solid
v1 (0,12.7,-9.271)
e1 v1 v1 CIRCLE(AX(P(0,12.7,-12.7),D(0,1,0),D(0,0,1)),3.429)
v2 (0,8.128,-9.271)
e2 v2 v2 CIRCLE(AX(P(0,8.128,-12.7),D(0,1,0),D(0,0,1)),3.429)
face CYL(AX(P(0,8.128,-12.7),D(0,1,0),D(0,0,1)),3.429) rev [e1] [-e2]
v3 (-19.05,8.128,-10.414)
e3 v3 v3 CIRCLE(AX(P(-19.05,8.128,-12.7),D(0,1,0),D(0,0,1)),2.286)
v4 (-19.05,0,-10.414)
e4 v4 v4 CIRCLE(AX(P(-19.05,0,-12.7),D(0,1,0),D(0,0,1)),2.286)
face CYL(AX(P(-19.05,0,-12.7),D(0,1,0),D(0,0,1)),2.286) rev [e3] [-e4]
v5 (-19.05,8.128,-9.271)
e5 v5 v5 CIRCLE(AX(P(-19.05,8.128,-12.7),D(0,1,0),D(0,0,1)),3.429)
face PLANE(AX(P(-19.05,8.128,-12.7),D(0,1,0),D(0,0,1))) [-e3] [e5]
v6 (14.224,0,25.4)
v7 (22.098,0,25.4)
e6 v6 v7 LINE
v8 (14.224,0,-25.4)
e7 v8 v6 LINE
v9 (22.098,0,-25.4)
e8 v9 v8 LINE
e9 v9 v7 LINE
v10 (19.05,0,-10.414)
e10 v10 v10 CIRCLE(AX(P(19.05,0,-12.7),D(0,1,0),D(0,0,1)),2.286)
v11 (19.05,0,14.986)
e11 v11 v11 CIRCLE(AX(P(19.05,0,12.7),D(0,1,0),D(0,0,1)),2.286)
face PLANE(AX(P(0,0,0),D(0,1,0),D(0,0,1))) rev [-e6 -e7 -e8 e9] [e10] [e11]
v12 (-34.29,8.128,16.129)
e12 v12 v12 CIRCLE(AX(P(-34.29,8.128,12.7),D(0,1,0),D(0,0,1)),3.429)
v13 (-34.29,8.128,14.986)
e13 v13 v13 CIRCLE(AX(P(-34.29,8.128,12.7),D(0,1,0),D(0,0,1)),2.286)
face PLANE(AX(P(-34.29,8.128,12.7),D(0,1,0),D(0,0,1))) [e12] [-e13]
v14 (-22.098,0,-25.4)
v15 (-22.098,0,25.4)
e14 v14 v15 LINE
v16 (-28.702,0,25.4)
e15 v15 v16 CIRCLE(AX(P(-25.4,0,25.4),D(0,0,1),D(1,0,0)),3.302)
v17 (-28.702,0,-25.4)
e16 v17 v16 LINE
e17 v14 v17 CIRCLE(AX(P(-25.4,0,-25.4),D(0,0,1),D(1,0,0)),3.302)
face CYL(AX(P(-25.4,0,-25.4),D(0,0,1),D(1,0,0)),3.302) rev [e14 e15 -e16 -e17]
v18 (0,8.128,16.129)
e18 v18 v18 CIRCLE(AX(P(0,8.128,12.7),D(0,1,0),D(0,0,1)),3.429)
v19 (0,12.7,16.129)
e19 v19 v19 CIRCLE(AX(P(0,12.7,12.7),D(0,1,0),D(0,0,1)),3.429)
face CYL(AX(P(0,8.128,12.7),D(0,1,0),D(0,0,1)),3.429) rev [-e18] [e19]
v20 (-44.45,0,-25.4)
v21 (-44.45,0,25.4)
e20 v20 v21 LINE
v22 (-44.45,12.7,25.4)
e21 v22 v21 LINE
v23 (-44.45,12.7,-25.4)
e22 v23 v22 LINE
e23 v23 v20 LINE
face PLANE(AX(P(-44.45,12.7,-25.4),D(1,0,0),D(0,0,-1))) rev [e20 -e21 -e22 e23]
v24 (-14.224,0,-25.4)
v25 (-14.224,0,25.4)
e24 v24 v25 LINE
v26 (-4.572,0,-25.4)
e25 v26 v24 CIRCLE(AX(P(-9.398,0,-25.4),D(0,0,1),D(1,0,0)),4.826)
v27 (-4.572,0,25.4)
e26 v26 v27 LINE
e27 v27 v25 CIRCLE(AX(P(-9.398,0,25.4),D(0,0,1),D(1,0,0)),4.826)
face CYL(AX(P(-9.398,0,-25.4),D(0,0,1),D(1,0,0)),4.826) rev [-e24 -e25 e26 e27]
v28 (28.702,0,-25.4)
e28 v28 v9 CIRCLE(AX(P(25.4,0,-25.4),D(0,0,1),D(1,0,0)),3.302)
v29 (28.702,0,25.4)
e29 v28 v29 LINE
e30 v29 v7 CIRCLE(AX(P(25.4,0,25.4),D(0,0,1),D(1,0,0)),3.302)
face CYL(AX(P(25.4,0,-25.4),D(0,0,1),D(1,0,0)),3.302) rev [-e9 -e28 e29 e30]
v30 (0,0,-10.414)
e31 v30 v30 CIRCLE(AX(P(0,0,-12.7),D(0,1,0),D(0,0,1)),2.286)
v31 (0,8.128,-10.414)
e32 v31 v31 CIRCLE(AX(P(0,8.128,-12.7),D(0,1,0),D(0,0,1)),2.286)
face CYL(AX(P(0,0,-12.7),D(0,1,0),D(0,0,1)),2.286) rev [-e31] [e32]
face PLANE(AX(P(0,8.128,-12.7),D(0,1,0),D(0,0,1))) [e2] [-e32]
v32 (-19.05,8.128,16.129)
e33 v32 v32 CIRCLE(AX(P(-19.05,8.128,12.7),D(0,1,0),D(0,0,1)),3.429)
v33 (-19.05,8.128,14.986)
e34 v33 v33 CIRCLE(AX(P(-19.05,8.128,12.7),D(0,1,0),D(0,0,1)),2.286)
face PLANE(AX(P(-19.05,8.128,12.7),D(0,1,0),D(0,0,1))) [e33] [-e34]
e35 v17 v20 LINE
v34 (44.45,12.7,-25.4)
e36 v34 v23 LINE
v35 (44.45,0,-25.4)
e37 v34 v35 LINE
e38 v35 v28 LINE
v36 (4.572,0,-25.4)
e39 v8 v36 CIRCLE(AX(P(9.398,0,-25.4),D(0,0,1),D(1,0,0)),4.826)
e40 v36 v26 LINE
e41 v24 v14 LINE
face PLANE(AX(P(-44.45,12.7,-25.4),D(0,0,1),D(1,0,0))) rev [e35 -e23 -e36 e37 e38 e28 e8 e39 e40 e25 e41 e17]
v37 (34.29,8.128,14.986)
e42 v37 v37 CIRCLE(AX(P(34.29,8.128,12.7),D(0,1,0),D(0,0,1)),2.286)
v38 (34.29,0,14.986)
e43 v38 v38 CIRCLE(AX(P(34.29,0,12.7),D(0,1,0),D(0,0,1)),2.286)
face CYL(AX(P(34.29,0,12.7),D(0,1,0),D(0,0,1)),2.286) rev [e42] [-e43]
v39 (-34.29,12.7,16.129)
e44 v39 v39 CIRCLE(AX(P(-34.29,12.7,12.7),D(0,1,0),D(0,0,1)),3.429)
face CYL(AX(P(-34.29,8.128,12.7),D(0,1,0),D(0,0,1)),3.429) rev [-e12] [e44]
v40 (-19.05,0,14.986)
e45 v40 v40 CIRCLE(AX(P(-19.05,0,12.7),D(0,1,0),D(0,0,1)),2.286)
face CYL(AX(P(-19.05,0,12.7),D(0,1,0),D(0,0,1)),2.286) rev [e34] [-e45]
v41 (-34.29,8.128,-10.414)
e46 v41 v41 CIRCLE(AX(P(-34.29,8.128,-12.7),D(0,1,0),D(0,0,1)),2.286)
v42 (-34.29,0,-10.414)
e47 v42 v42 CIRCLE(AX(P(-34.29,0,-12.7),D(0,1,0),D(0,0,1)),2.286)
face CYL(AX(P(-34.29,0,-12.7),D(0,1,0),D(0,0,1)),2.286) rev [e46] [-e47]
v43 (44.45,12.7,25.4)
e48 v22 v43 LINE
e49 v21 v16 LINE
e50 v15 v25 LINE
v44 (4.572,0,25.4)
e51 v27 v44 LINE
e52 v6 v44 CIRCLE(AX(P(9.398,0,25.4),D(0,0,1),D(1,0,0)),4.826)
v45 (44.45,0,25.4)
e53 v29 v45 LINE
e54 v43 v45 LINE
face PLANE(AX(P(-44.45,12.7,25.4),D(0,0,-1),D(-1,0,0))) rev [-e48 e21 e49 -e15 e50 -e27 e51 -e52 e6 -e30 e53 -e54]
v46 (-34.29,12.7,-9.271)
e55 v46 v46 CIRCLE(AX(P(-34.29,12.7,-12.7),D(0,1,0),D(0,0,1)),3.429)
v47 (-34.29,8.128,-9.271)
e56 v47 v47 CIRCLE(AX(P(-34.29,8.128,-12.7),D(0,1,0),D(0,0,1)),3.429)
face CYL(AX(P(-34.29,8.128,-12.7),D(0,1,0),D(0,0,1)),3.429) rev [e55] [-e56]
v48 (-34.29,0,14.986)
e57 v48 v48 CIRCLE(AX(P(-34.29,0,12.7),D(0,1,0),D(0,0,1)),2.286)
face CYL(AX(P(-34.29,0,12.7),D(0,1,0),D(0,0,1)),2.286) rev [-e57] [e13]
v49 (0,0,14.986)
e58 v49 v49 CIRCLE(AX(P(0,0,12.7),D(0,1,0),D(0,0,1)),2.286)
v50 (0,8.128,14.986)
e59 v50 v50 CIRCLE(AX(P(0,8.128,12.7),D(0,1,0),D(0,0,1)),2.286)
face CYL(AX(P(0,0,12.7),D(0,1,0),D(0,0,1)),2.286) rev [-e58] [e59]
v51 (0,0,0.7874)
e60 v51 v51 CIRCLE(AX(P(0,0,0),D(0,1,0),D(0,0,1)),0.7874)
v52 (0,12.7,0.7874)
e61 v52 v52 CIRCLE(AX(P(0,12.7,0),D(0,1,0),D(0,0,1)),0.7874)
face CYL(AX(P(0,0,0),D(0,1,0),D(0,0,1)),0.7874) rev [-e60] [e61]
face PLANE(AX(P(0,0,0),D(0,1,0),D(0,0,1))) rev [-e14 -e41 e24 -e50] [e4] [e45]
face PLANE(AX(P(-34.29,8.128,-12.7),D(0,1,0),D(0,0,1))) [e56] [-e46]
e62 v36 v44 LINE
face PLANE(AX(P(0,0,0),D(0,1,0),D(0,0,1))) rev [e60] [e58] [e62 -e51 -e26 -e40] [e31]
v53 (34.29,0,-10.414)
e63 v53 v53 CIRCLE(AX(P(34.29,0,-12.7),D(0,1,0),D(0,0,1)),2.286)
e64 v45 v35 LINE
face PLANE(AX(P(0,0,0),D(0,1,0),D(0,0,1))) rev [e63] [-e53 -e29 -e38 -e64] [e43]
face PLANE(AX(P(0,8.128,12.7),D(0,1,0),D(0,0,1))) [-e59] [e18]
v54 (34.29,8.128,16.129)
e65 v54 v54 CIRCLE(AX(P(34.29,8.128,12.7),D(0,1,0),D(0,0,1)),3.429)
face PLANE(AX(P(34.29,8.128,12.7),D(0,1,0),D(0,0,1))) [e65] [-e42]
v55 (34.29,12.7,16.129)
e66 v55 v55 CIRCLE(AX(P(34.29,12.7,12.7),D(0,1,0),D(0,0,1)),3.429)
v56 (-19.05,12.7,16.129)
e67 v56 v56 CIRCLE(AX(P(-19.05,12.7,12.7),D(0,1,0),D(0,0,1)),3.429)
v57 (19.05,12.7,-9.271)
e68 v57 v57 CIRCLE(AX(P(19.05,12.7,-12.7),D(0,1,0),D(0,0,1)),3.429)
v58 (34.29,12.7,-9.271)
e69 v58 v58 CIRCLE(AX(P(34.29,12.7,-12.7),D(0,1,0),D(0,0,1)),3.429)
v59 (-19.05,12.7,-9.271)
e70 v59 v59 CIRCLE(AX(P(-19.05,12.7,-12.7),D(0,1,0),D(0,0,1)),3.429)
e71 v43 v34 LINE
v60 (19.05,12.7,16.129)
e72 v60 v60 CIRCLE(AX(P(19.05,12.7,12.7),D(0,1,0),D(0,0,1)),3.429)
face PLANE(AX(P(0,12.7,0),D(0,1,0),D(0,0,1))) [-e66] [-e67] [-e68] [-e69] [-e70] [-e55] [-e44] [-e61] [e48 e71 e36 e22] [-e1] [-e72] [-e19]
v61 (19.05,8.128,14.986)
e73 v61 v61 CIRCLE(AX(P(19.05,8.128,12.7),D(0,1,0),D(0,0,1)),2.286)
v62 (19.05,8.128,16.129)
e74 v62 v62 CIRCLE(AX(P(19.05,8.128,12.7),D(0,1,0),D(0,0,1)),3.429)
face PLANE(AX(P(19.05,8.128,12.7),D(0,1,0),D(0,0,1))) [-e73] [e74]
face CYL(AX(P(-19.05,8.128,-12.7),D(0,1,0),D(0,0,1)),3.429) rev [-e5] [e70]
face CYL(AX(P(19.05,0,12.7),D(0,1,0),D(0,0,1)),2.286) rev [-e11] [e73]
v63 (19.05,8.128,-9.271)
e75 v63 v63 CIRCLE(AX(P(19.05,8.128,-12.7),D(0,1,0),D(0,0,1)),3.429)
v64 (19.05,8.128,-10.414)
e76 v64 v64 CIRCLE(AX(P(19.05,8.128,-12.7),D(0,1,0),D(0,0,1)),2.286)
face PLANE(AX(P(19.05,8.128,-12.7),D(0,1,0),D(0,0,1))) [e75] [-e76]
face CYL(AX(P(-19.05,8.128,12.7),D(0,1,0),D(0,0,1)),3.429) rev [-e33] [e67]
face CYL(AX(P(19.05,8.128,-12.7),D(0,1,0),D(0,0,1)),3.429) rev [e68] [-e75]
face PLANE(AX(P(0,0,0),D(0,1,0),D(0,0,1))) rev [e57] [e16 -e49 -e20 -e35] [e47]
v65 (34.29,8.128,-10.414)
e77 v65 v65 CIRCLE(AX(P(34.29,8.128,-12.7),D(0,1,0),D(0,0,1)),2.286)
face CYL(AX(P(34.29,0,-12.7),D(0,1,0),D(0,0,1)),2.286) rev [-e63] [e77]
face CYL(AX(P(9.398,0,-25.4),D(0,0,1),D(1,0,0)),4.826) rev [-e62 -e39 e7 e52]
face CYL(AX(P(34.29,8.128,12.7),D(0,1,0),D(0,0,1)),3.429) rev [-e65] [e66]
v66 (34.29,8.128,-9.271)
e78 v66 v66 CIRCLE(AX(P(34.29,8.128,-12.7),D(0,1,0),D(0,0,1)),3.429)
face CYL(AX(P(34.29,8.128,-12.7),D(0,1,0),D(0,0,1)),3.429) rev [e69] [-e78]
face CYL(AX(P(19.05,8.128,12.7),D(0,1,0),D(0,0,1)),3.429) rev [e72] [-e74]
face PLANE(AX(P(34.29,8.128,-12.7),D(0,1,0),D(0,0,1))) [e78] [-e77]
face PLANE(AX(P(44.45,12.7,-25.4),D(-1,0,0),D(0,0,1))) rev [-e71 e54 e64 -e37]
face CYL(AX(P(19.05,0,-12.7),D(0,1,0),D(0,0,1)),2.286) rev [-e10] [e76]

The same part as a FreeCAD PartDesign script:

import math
import FreeCAD as App
import Part
import Sketcher
Q = App.Units.Quantity


def add_polygon(sketch, points):
    """Adds a closed chain of lines whose ends are joined by coincident constraints."""
    first, n = sketch.GeometryCount, len(points)
    for a, b in zip(points, points[1:] + points[:1]):
        sketch.addGeometry(Part.LineSegment(App.Vector(*a, 0), App.Vector(*b, 0)), False)
    for i in range(n):
        sketch.addConstraint(Sketcher.Constraint("Coincident", first + i, 2, first + (i + 1) % n, 1))

doc = App.newDocument("Part")
params = doc.addObject("Spreadsheet::Sheet", "Params")
for row, (alias, value) in enumerate([
    ("sketch1_height", "2 in"),
    ("sketch1_width", "3.5 in"),
    ("pad1_length", "0.5 in"),
    ("sketch2_diameter", "0.27 in"),
    ("sketch2_diameter2", "0.18 in"),
    ("pocket1_length", "0.18 in"),
    ("sketch3_diameter", "0.18 in"),
    ("linearpattern_pitch", "1 in"),
    ("sketch4_radius", "0.13 in"),
    ("sketch4_radius2", "0.19 in"),
    ("sketch5_diameter", "0.062 in"),
    ("sketch6_diameter", "0.18 in"),
], start=1):
    params.set(f"A{row}", alias)
    params.set(f"B{row}", "=" + value)
    params.setAlias(f"B{row}", alias)

body = doc.addObject("PartDesign::Body", "Body")

# Sketch on XZ plane
sketch1 = doc.addObject("Sketcher::SketchObject", "Sketch")
body.addObject(sketch1)
sketch1.AttachmentSupport = (doc.XZ_Plane, [""])
sketch1.MapMode = "FlatFace"
add_polygon(sketch1, [(-44.45, -25.4), (-44.45, 25.4), (44.45, 25.4), (44.45, -25.4)])  # lines 0-3
sketch1.addConstraint([
    Sketcher.Constraint("Vertical", 0),
    Sketcher.Constraint("Horizontal", 1),
    Sketcher.Constraint("Vertical", 2),
    Sketcher.Constraint("Horizontal", 3),
    Sketcher.Constraint("Symmetric", 0, 2, 2, 2, -1, 1),
    Sketcher.Constraint("DistanceY", 0, 1, 0, 2, Q("2 in")),
    Sketcher.Constraint("DistanceX", 1, 1, 1, 2, Q("3.5 in")),
])
sketch1.setExpression("Constraints[9]", "Params.sketch1_height")
sketch1.setExpression("Constraints[10]", "Params.sketch1_width")
pad1 = doc.addObject("PartDesign::Pad", "Pad")
body.addObject(pad1)
pad1.Profile = sketch1
pad1.setExpression("Length", "Params.pad1_length")
pad1.Reversed = True

# Sketch on XZ plane
sketch2 = doc.addObject("Sketcher::SketchObject", "Sketch001")
body.addObject(sketch2)
sketch2.AttachmentSupport = (doc.XZ_Plane, [""])
sketch2.MapMode = "FlatFace"
sketch2.AttachmentOffset = App.Placement(App.Vector(0, 0, -0.5 * 25.4), App.Rotation())
sketch2.addGeometry([
    Part.Circle(App.Vector(-34.29, -12.7, 0), App.Vector(0, 0, 1), 3.429),  # 0
    Part.Circle(App.Vector(-34.29, -12.7, 0), App.Vector(0, 0, 1), 2.286),  # 1
    Part.Circle(App.Vector(-19.05, -12.7, 0), App.Vector(0, 0, 1), 3.429),  # 2
    Part.Circle(App.Vector(-19.05, -12.7, 0), App.Vector(0, 0, 1), 2.286),  # 3
    Part.Circle(App.Vector(0, -12.7, 0), App.Vector(0, 0, 1), 3.429),  # 4
    Part.Circle(App.Vector(0, -12.7, 0), App.Vector(0, 0, 1), 2.286),  # 5
    Part.Circle(App.Vector(19.05, -12.7, 0), App.Vector(0, 0, 1), 3.429),  # 6
    Part.Circle(App.Vector(19.05, -12.7, 0), App.Vector(0, 0, 1), 2.286),  # 7
    Part.Circle(App.Vector(34.29, -12.7, 0), App.Vector(0, 0, 1), 3.429),  # 8
    Part.Circle(App.Vector(34.29, -12.7, 0), App.Vector(0, 0, 1), 2.286),  # 9
], False)
sketch2.addConstraint([
    Sketcher.Constraint("Coincident", 1, 3, 0, 3),
    Sketcher.Constraint("Coincident", 3, 3, 2, 3),
    Sketcher.Constraint("Coincident", 5, 3, 4, 3),
    Sketcher.Constraint("Coincident", 7, 3, 6, 3),
    Sketcher.Constraint("Coincident", 9, 3, 8, 3),
    Sketcher.Constraint("Equal", 0, 2),
    Sketcher.Constraint("Equal", 1, 3),
    Sketcher.Constraint("Equal", 2, 4),
    Sketcher.Constraint("Equal", 3, 5),
    Sketcher.Constraint("Equal", 4, 6),
    Sketcher.Constraint("Equal", 5, 7),
    Sketcher.Constraint("Equal", 6, 8),
    Sketcher.Constraint("Equal", 7, 9),
    Sketcher.Constraint("Symmetric", 2, 3, 6, 3, -2),
    Sketcher.Constraint("Symmetric", 0, 3, 8, 3, -2),
    Sketcher.Constraint("PointOnObject", 4, 3, -2),
    Sketcher.Constraint("Horizontal", 1, 3, 2, 3),
    Sketcher.Constraint("Horizontal", 3, 3, 4, 3),
    Sketcher.Constraint("Diameter", 0, Q("0.27 in")),
    Sketcher.Constraint("Diameter", 1, Q("0.18 in")),
    Sketcher.Constraint("DistanceY", 0, 3, -1, 1, Q("0.5 in")),
    Sketcher.Constraint("DistanceX", 0, 3, 2, 3, Q("0.6 in")),
    Sketcher.Constraint("DistanceX", 2, 3, 6, 3, Q("1.5 in")),
])
sketch2.setExpression("Constraints[18]", "Params.sketch2_diameter")
sketch2.setExpression("Constraints[19]", "Params.sketch2_diameter2")
pocket1 = doc.addObject("PartDesign::Pocket", "Pocket")
body.addObject(pocket1)
pocket1.Profile = sketch2
pocket1.setExpression("Length", "Params.pocket1_length")
pocket1.Reversed = True

# Sketch on XZ plane
sketch3 = doc.addObject("Sketcher::SketchObject", "Sketch002")
body.addObject(sketch3)
sketch3.AttachmentSupport = (doc.XZ_Plane, [""])
sketch3.MapMode = "FlatFace"
sketch3.AttachmentOffset = App.Placement(App.Vector(0, 0, -0.5 * 25.4), App.Rotation())
sketch3.addGeometry([
    Part.Circle(App.Vector(-34.29, -12.7, 0), App.Vector(0, 0, 1), 2.286),  # 0
    Part.Circle(App.Vector(-19.05, -12.7, 0), App.Vector(0, 0, 1), 2.286),  # 1
    Part.Circle(App.Vector(0, -12.7, 0), App.Vector(0, 0, 1), 2.286),  # 2
    Part.Circle(App.Vector(19.05, -12.7, 0), App.Vector(0, 0, 1), 2.286),  # 3
    Part.Circle(App.Vector(34.29, -12.7, 0), App.Vector(0, 0, 1), 2.286),  # 4
], False)
sketch3.addConstraint([
    Sketcher.Constraint("Equal", 0, 1),
    Sketcher.Constraint("Equal", 1, 2),
    Sketcher.Constraint("Equal", 2, 3),
    Sketcher.Constraint("Equal", 3, 4),
    Sketcher.Constraint("Symmetric", 1, 3, 3, 3, -2),
    Sketcher.Constraint("Symmetric", 0, 3, 4, 3, -2),
    Sketcher.Constraint("PointOnObject", 2, 3, -2),
    Sketcher.Constraint("Horizontal", 0, 3, 1, 3),
    Sketcher.Constraint("Horizontal", 1, 3, 2, 3),
    Sketcher.Constraint("Diameter", 0, Q("0.18 in")),
    Sketcher.Constraint("DistanceY", 0, 3, -1, 1, Q("0.5 in")),
    Sketcher.Constraint("DistanceX", 0, 3, 1, 3, Q("0.6 in")),
    Sketcher.Constraint("DistanceX", 1, 3, 3, 3, Q("1.5 in")),
])
sketch3.setExpression("Constraints[9]", "Params.sketch3_diameter")
pocket2 = doc.addObject("PartDesign::Pocket", "Pocket001")
body.addObject(pocket2)
pocket2.Profile = sketch3
pocket2.Type = "ThroughAll"
pocket2.Reversed = True
doc.recompute()

linearpattern = doc.addObject("PartDesign::LinearPattern", "LinearPattern")
body.addObject(linearpattern)
linearpattern.Originals = [pocket1]
linearpattern.Direction = (doc.Z_Axis, [""])
linearpattern.Mode = "offset"
linearpattern.setExpression("Offset", "Params.linearpattern_pitch")
linearpattern.Occurrences = 2
body.Tip = linearpattern

# Sketch on XY plane
sketch4 = doc.addObject("Sketcher::SketchObject", "Sketch003")
body.addObject(sketch4)
sketch4.AttachmentSupport = (doc.XY_Plane, [""])
sketch4.MapMode = "FlatFace"
sketch4.AttachmentOffset = App.Placement(App.Vector(0, 0, 1 * 25.4), App.Rotation())
sketch4.addGeometry([
    Part.LineSegment(App.Vector(-28.702, 0, 0), App.Vector(-22.098, 0, 0)),  # 0
    Part.ArcOfCircle(Part.Circle(App.Vector(-25.4, 0, 0), App.Vector(0, 0, 1), 3.302), math.radians(0), math.radians(180)),  # 1
    Part.LineSegment(App.Vector(-14.224, 0, 0), App.Vector(-4.572, 0, 0)),  # 2
    Part.ArcOfCircle(Part.Circle(App.Vector(-9.398, 0, 0), App.Vector(0, 0, 1), 4.826), math.radians(0), math.radians(180)),  # 3
    Part.LineSegment(App.Vector(4.572, 0, 0), App.Vector(14.224, 0, 0)),  # 4
    Part.ArcOfCircle(Part.Circle(App.Vector(9.398, 0, 0), App.Vector(0, 0, 1), 4.826), math.radians(0), math.radians(180)),  # 5
    Part.LineSegment(App.Vector(22.098, 0, 0), App.Vector(28.702, 0, 0)),  # 6
    Part.ArcOfCircle(Part.Circle(App.Vector(25.4, 0, 0), App.Vector(0, 0, 1), 3.302), math.radians(0), math.radians(180)),  # 7
], False)
sketch4.addConstraint([
    Sketcher.Constraint("Coincident", 0, 1, 1, 2),
    Sketcher.Constraint("Coincident", 1, 1, 0, 2),
    Sketcher.Constraint("Coincident", 2, 1, 3, 2),
    Sketcher.Constraint("Coincident", 3, 1, 2, 2),
    Sketcher.Constraint("Coincident", 4, 1, 5, 2),
    Sketcher.Constraint("Coincident", 5, 1, 4, 2),
    Sketcher.Constraint("Coincident", 6, 1, 7, 2),
    Sketcher.Constraint("Coincident", 7, 1, 6, 2),
    Sketcher.Constraint("Horizontal", 0),
    Sketcher.Constraint("Horizontal", 2),
    Sketcher.Constraint("Horizontal", 4),
    Sketcher.Constraint("Horizontal", 6),
    Sketcher.Constraint("Equal", 3, 5),
    Sketcher.Constraint("Equal", 1, 7),
    Sketcher.Constraint("Symmetric", 3, 3, 5, 3, -1, 1),
    Sketcher.Constraint("Symmetric", 1, 3, 7, 3, -1, 1),
    Sketcher.Constraint("PointOnObject", 1, 3, -1),
    Sketcher.Constraint("PointOnObject", 3, 3, -1),
    Sketcher.Constraint("PointOnObject", 0, 1, -1),
    Sketcher.Constraint("PointOnObject", 2, 1, -1),
    Sketcher.Constraint("PointOnObject", 4, 1, -1),
    Sketcher.Constraint("PointOnObject", 6, 1, -1),
    Sketcher.Constraint("Radius", 1, Q("0.13 in")),
    Sketcher.Constraint("Radius", 3, Q("0.19 in")),
    Sketcher.Constraint("DistanceX", 1, 3, -1, 1, Q("1 in")),
    Sketcher.Constraint("DistanceX", 0, 1, 5, 3, Q("1.5 in")),
])
sketch4.setExpression("Constraints[22]", "Params.sketch4_radius")
sketch4.setExpression("Constraints[23]", "Params.sketch4_radius2")
pocket3 = doc.addObject("PartDesign::Pocket", "Pocket002")
body.addObject(pocket3)
pocket3.Profile = sketch4
pocket3.Type = "ThroughAll"

# Sketch on XZ plane
sketch5 = doc.addObject("Sketcher::SketchObject", "Sketch004")
body.addObject(sketch5)
sketch5.AttachmentSupport = (doc.XZ_Plane, [""])
sketch5.MapMode = "FlatFace"
sketch5.AttachmentOffset = App.Placement(App.Vector(0, 0, -0.5 * 25.4), App.Rotation())
sketch5.addGeometry(Part.Circle(App.Vector(0, 0, 0), App.Vector(0, 0, 1), 0.7874), False)
sketch5.addConstraint([
    Sketcher.Constraint("Coincident", 0, 3, -1, 1),
    Sketcher.Constraint("Diameter", 0, Q("0.062 in")),
])
sketch5.setExpression("Constraints[1]", "Params.sketch5_diameter")
pocket4 = doc.addObject("PartDesign::Pocket", "Pocket003")
body.addObject(pocket4)
pocket4.Profile = sketch5
pocket4.Type = "ThroughAll"
pocket4.Reversed = True

# Sketch on XZ plane
sketch6 = doc.addObject("Sketcher::SketchObject", "Sketch005")
body.addObject(sketch6)
sketch6.AttachmentSupport = (doc.XZ_Plane, [""])
sketch6.MapMode = "FlatFace"
sketch6.AttachmentOffset = App.Placement(App.Vector(0, 0, -0.5 * 25.4), App.Rotation())
sketch6.addGeometry([
    Part.Circle(App.Vector(-34.29, 12.7, 0), App.Vector(0, 0, 1), 2.286),  # 0
    Part.Circle(App.Vector(-19.05, 12.7, 0), App.Vector(0, 0, 1), 2.286),  # 1
    Part.Circle(App.Vector(0, 12.7, 0), App.Vector(0, 0, 1), 2.286),  # 2
    Part.Circle(App.Vector(19.05, 12.7, 0), App.Vector(0, 0, 1), 2.286),  # 3
    Part.Circle(App.Vector(34.29, 12.7, 0), App.Vector(0, 0, 1), 2.286),  # 4
], False)
sketch6.addConstraint([
    Sketcher.Constraint("Equal", 0, 1),
    Sketcher.Constraint("Equal", 1, 2),
    Sketcher.Constraint("Equal", 2, 3),
    Sketcher.Constraint("Equal", 3, 4),
    Sketcher.Constraint("Symmetric", 1, 3, 3, 3, -2),
    Sketcher.Constraint("Symmetric", 0, 3, 4, 3, -2),
    Sketcher.Constraint("PointOnObject", 2, 3, -2),
    Sketcher.Constraint("Horizontal", 0, 3, 1, 3),
    Sketcher.Constraint("Horizontal", 1, 3, 2, 3),
    Sketcher.Constraint("Diameter", 0, Q("0.18 in")),
    Sketcher.Constraint("DistanceY", -1, 1, 0, 3, Q("0.5 in")),
    Sketcher.Constraint("DistanceX", 0, 3, 1, 3, Q("0.6 in")),
    Sketcher.Constraint("DistanceX", 1, 3, 3, 3, Q("1.5 in")),
])
sketch6.setExpression("Constraints[9]", "Params.sketch6_diameter")
pocket5 = doc.addObject("PartDesign::Pocket", "Pocket004")
body.addObject(pocket5)
pocket5.Profile = sketch6
pocket5.Type = "ThroughAll"
pocket5.Reversed = True

doc.recompute()
